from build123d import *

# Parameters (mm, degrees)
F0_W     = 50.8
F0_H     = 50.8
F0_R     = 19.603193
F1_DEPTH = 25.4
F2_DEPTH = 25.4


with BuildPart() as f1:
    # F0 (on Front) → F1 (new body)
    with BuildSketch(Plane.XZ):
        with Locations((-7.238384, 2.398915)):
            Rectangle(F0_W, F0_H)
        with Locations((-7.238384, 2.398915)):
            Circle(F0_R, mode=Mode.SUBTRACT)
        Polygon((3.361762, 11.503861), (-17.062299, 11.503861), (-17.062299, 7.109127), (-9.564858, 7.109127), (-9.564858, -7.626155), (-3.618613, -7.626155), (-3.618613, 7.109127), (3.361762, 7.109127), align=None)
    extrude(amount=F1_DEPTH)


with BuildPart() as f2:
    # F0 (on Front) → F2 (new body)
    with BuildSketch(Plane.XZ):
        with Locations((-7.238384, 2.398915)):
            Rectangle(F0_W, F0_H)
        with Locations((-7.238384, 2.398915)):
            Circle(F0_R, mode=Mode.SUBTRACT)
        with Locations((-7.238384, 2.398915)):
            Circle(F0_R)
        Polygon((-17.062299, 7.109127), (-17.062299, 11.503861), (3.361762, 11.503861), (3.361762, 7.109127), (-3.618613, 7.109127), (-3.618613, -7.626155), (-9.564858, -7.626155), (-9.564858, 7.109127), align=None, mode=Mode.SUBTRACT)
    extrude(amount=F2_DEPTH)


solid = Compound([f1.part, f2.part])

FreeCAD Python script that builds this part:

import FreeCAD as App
import Part
import Sketcher

V = App.Vector
Q = App.Units.Quantity

doc = App.newDocument("Part")
params = doc.addObject("Spreadsheet::Sheet", "Params")
for row, (alias, value) in enumerate([
    ("sketch1_width", "2 in"),
    ("pad1_length", "1 in"),
    ("sketch2_width", "2 in"),
    ("pad2_length", "1 in"),
], start=1):
    params.set(f"A{row}", alias)
    params.set(f"B{row}", "=" + value)
    params.setAlias(f"B{row}", alias)

body = doc.addObject("PartDesign::Body", "Body")
body.AllowCompound = True

sketch1 = body.newObject("Sketcher::SketchObject", "Sketch")
sketch1.AttachmentSupport = (doc.getObject("XZ_Plane"), [""])
sketch1.MapMode = "FlatFace"
sketch1.addGeometry(Part.LineSegment(V(-32.6, 27.8, 0), V(-32.6, -23, 0)), False)
sketch1.addGeometry(Part.LineSegment(V(-32.6, -23, 0), V(18.2, -23, 0)), False)
sketch1.addGeometry(Part.LineSegment(V(18.2, -23, 0), V(18.2, 27.8, 0)), False)
sketch1.addGeometry(Part.LineSegment(V(18.2, 27.8, 0), V(-32.6, 27.8, 0)), False)
sketch1.addGeometry(Part.Circle(V(-7.2, 2.4, 0), V(0, 0, 1), 19.6), False)
sketch1.addGeometry(Part.LineSegment(V(3.4, 11.5, 0), V(-17.1, 11.5, 0)), False)
sketch1.addGeometry(Part.LineSegment(V(-17.1, 11.5, 0), V(-17.1, 7.1, 0)), False)
sketch1.addGeometry(Part.LineSegment(V(-17.1, 7.1, 0), V(-9.6, 7.1, 0)), False)
sketch1.addGeometry(Part.LineSegment(V(-9.6, 7.1, 0), V(-9.6, -7.6, 0)), False)
sketch1.addGeometry(Part.LineSegment(V(-9.6, -7.6, 0), V(-3.6, -7.6, 0)), False)
sketch1.addGeometry(Part.LineSegment(V(-3.6, -7.6, 0), V(-3.6, 7.1, 0)), False)
sketch1.addGeometry(Part.LineSegment(V(-3.6, 7.1, 0), V(3.4, 7.1, 0)), False)
sketch1.addGeometry(Part.LineSegment(V(3.4, 7.1, 0), V(3.4, 11.5, 0)), False)
sketch1.addConstraint(Sketcher.Constraint("Coincident", 0, 2, 1, 1))
sketch1.addConstraint(Sketcher.Constraint("Coincident", 1, 2, 2, 1))
sketch1.addConstraint(Sketcher.Constraint("Coincident", 2, 2, 3, 1))
sketch1.addConstraint(Sketcher.Constraint("Coincident", 3, 2, 0, 1))
sketch1.addConstraint(Sketcher.Constraint("Coincident", 5, 2, 6, 1))
sketch1.addConstraint(Sketcher.Constraint("Coincident", 6, 2, 7, 1))
sketch1.addConstraint(Sketcher.Constraint("Coincident", 7, 2, 8, 1))
sketch1.addConstraint(Sketcher.Constraint("Coincident", 8, 2, 9, 1))
sketch1.addConstraint(Sketcher.Constraint("Coincident", 9, 2, 10, 1))
sketch1.addConstraint(Sketcher.Constraint("Coincident", 10, 2, 11, 1))
sketch1.addConstraint(Sketcher.Constraint("Coincident", 11, 2, 12, 1))
sketch1.addConstraint(Sketcher.Constraint("Coincident", 12, 2, 5, 1))
sketch1.addConstraint(Sketcher.Constraint("Vertical", 0))
sketch1.addConstraint(Sketcher.Constraint("Horizontal", 1))
sketch1.addConstraint(Sketcher.Constraint("Vertical", 2))
sketch1.addConstraint(Sketcher.Constraint("Horizontal", 3))
sketch1.addConstraint(Sketcher.Constraint("Horizontal", 5))
sketch1.addConstraint(Sketcher.Constraint("Vertical", 6))
sketch1.addConstraint(Sketcher.Constraint("Horizontal", 7))
sketch1.addConstraint(Sketcher.Constraint("Vertical", 8))
sketch1.addConstraint(Sketcher.Constraint("Horizontal", 9))
sketch1.addConstraint(Sketcher.Constraint("Vertical", 10))
sketch1.addConstraint(Sketcher.Constraint("Horizontal", 11))
sketch1.addConstraint(Sketcher.Constraint("Vertical", 12))
sketch1.addConstraint(Sketcher.Constraint("Horizontal", 7, 2, 10, 2))
sketch1.addConstraint(Sketcher.Constraint("Equal", 3, 0))
sketch1.addConstraint(Sketcher.Constraint("DistanceX", 1, 1, 1, 2, Q("2 in")))
sketch1.addConstraint(Sketcher.Constraint("DistanceX", 0, 2, 4, 3, Q("1 in")))
sketch1.addConstraint(Sketcher.Constraint("DistanceY", 0, 2, 4, 3, Q("1 in")))
sketch1.addConstraint(Sketcher.Constraint("Diameter", 4, 39.206386))
sketch1.addConstraint(Sketcher.Constraint("DistanceX", 5, 2, 5, 1, 20.424061))
sketch1.addConstraint(Sketcher.Constraint("DistanceX", 7, 1, 7, 2, 7.497441))
sketch1.addConstraint(Sketcher.Constraint("DistanceX", 5, 2, -1, 1, 17.062299))
sketch1.addConstraint(Sketcher.Constraint("DistanceX", 9, 1, 9, 2, 5.946245))
sketch1.addConstraint(Sketcher.Constraint("DistanceY", 6, 2, 6, 1, 4.394734))
sketch1.addConstraint(Sketcher.Constraint("DistanceY", 8, 2, 8, 1, 14.735282))
sketch1.addConstraint(Sketcher.Constraint("DistanceY", -1, 1, 5, 2, 11.503861))
sketch1.addConstraint(Sketcher.Constraint("DistanceY", 6, 2, 3, 2, 20.689788))
sketch1.addConstraint(Sketcher.Constraint("DistanceX", 4, 3, 9, 2, 3.619771))
sketch1.setExpression("Constraints[26]", "Params.sketch1_width")
pad1 = body.newObject("PartDesign::Pad", "Pad")
pad1.Profile = sketch1
pad1.setExpression("Length", "Params.pad1_length")
body2 = doc.addObject("PartDesign::Body", "Body001")

sketch2 = body2.newObject("Sketcher::SketchObject", "Sketch001")
sketch2.AttachmentSupport = (doc.getObject("XZ_Plane001"), [""])
sketch2.MapMode = "FlatFace"
sketch2.addGeometry(Part.LineSegment(V(-32.6, 27.8, 0), V(-32.6, -23, 0)), False)
sketch2.addGeometry(Part.LineSegment(V(-32.6, -23, 0), V(18.2, -23, 0)), False)
sketch2.addGeometry(Part.LineSegment(V(18.2, -23, 0), V(18.2, 27.8, 0)), False)
sketch2.addGeometry(Part.LineSegment(V(18.2, 27.8, 0), V(-32.6, 27.8, 0)), False)
sketch2.addGeometry(Part.LineSegment(V(-9.6, 7.1, 0), V(-17.1, 7.1, 0)), False)
sketch2.addGeometry(Part.LineSegment(V(-17.1, 7.1, 0), V(-17.1, 11.5, 0)), False)
sketch2.addGeometry(Part.LineSegment(V(-17.1, 11.5, 0), V(3.4, 11.5, 0)), False)
sketch2.addGeometry(Part.LineSegment(V(3.4, 11.5, 0), V(3.4, 7.1, 0)), False)
sketch2.addGeometry(Part.LineSegment(V(3.4, 7.1, 0), V(-3.6, 7.1, 0)), False)
sketch2.addGeometry(Part.LineSegment(V(-3.6, 7.1, 0), V(-3.6, -7.6, 0)), False)
sketch2.addGeometry(Part.LineSegment(V(-3.6, -7.6, 0), V(-9.6, -7.6, 0)), False)
sketch2.addGeometry(Part.LineSegment(V(-9.6, -7.6, 0), V(-9.6, 7.1, 0)), False)
sketch2.addConstraint(Sketcher.Constraint("Coincident", 0, 2, 1, 1))
sketch2.addConstraint(Sketcher.Constraint("Coincident", 1, 2, 2, 1))
sketch2.addConstraint(Sketcher.Constraint("Coincident", 2, 2, 3, 1))
sketch2.addConstraint(Sketcher.Constraint("Coincident", 3, 2, 0, 1))
sketch2.addConstraint(Sketcher.Constraint("Coincident", 4, 2, 5, 1))
sketch2.addConstraint(Sketcher.Constraint("Coincident", 5, 2, 6, 1))
sketch2.addConstraint(Sketcher.Constraint("Coincident", 6, 2, 7, 1))
sketch2.addConstraint(Sketcher.Constraint("Coincident", 7, 2, 8, 1))
sketch2.addConstraint(Sketcher.Constraint("Coincident", 8, 2, 9, 1))
sketch2.addConstraint(Sketcher.Constraint("Coincident", 9, 2, 10, 1))
sketch2.addConstraint(Sketcher.Constraint("Coincident", 10, 2, 11, 1))
sketch2.addConstraint(Sketcher.Constraint("Coincident", 11, 2, 4, 1))
sketch2.addConstraint(Sketcher.Constraint("Vertical", 0))
sketch2.addConstraint(Sketcher.Constraint("Horizontal", 1))
sketch2.addConstraint(Sketcher.Constraint("Vertical", 2))
sketch2.addConstraint(Sketcher.Constraint("Horizontal", 3))
sketch2.addConstraint(Sketcher.Constraint("Horizontal", 4))
sketch2.addConstraint(Sketcher.Constraint("Vertical", 5))
sketch2.addConstraint(Sketcher.Constraint("Horizontal", 6))
sketch2.addConstraint(Sketcher.Constraint("Vertical", 7))
sketch2.addConstraint(Sketcher.Constraint("Horizontal", 8))
sketch2.addConstraint(Sketcher.Constraint("Vertical", 9))
sketch2.addConstraint(Sketcher.Constraint("Horizontal", 10))
sketch2.addConstraint(Sketcher.Constraint("Vertical", 11))
sketch2.addConstraint(Sketcher.Constraint("Horizontal", 4, 2, 7, 2))
sketch2.addConstraint(Sketcher.Constraint("Equal", 3, 0))
sketch2.addConstraint(Sketcher.Constraint("DistanceX", 1, 1, 1, 2, Q("2 in")))
sketch2.addConstraint(Sketcher.Constraint("DistanceX", 4, 2, 4, 1, 7.497441))
sketch2.addConstraint(Sketcher.Constraint("DistanceX", 6, 1, 6, 2, 20.424061))
sketch2.addConstraint(Sketcher.Constraint("DistanceX", 4, 2, -1, 1, 17.062299))
sketch2.addConstraint(Sketcher.Constraint("DistanceX", 8, 2, 8, 1, 6.980375))
sketch2.addConstraint(Sketcher.Constraint("DistanceY", 5, 1, 5, 2, 4.394734))
sketch2.addConstraint(Sketcher.Constraint("DistanceY", 9, 2, 9, 1, 14.735282))
sketch2.addConstraint(Sketcher.Constraint("DistanceY", -1, 1, 5, 2, 11.503861))
sketch2.addConstraint(Sketcher.Constraint("DistanceY", 4, 2, 3, 2, 20.689788))
sketch2.addConstraint(Sketcher.Constraint("DistanceX", 8, 2, 2, 2, 21.780229))
sketch2.setExpression("Constraints[26]", "Params.sketch2_width")
pad2 = body2.newObject("PartDesign::Pad", "Pad001")
pad2.Profile = sketch2
pad2.setExpression("Length", "Params.pad2_length")

doc.recompute()
